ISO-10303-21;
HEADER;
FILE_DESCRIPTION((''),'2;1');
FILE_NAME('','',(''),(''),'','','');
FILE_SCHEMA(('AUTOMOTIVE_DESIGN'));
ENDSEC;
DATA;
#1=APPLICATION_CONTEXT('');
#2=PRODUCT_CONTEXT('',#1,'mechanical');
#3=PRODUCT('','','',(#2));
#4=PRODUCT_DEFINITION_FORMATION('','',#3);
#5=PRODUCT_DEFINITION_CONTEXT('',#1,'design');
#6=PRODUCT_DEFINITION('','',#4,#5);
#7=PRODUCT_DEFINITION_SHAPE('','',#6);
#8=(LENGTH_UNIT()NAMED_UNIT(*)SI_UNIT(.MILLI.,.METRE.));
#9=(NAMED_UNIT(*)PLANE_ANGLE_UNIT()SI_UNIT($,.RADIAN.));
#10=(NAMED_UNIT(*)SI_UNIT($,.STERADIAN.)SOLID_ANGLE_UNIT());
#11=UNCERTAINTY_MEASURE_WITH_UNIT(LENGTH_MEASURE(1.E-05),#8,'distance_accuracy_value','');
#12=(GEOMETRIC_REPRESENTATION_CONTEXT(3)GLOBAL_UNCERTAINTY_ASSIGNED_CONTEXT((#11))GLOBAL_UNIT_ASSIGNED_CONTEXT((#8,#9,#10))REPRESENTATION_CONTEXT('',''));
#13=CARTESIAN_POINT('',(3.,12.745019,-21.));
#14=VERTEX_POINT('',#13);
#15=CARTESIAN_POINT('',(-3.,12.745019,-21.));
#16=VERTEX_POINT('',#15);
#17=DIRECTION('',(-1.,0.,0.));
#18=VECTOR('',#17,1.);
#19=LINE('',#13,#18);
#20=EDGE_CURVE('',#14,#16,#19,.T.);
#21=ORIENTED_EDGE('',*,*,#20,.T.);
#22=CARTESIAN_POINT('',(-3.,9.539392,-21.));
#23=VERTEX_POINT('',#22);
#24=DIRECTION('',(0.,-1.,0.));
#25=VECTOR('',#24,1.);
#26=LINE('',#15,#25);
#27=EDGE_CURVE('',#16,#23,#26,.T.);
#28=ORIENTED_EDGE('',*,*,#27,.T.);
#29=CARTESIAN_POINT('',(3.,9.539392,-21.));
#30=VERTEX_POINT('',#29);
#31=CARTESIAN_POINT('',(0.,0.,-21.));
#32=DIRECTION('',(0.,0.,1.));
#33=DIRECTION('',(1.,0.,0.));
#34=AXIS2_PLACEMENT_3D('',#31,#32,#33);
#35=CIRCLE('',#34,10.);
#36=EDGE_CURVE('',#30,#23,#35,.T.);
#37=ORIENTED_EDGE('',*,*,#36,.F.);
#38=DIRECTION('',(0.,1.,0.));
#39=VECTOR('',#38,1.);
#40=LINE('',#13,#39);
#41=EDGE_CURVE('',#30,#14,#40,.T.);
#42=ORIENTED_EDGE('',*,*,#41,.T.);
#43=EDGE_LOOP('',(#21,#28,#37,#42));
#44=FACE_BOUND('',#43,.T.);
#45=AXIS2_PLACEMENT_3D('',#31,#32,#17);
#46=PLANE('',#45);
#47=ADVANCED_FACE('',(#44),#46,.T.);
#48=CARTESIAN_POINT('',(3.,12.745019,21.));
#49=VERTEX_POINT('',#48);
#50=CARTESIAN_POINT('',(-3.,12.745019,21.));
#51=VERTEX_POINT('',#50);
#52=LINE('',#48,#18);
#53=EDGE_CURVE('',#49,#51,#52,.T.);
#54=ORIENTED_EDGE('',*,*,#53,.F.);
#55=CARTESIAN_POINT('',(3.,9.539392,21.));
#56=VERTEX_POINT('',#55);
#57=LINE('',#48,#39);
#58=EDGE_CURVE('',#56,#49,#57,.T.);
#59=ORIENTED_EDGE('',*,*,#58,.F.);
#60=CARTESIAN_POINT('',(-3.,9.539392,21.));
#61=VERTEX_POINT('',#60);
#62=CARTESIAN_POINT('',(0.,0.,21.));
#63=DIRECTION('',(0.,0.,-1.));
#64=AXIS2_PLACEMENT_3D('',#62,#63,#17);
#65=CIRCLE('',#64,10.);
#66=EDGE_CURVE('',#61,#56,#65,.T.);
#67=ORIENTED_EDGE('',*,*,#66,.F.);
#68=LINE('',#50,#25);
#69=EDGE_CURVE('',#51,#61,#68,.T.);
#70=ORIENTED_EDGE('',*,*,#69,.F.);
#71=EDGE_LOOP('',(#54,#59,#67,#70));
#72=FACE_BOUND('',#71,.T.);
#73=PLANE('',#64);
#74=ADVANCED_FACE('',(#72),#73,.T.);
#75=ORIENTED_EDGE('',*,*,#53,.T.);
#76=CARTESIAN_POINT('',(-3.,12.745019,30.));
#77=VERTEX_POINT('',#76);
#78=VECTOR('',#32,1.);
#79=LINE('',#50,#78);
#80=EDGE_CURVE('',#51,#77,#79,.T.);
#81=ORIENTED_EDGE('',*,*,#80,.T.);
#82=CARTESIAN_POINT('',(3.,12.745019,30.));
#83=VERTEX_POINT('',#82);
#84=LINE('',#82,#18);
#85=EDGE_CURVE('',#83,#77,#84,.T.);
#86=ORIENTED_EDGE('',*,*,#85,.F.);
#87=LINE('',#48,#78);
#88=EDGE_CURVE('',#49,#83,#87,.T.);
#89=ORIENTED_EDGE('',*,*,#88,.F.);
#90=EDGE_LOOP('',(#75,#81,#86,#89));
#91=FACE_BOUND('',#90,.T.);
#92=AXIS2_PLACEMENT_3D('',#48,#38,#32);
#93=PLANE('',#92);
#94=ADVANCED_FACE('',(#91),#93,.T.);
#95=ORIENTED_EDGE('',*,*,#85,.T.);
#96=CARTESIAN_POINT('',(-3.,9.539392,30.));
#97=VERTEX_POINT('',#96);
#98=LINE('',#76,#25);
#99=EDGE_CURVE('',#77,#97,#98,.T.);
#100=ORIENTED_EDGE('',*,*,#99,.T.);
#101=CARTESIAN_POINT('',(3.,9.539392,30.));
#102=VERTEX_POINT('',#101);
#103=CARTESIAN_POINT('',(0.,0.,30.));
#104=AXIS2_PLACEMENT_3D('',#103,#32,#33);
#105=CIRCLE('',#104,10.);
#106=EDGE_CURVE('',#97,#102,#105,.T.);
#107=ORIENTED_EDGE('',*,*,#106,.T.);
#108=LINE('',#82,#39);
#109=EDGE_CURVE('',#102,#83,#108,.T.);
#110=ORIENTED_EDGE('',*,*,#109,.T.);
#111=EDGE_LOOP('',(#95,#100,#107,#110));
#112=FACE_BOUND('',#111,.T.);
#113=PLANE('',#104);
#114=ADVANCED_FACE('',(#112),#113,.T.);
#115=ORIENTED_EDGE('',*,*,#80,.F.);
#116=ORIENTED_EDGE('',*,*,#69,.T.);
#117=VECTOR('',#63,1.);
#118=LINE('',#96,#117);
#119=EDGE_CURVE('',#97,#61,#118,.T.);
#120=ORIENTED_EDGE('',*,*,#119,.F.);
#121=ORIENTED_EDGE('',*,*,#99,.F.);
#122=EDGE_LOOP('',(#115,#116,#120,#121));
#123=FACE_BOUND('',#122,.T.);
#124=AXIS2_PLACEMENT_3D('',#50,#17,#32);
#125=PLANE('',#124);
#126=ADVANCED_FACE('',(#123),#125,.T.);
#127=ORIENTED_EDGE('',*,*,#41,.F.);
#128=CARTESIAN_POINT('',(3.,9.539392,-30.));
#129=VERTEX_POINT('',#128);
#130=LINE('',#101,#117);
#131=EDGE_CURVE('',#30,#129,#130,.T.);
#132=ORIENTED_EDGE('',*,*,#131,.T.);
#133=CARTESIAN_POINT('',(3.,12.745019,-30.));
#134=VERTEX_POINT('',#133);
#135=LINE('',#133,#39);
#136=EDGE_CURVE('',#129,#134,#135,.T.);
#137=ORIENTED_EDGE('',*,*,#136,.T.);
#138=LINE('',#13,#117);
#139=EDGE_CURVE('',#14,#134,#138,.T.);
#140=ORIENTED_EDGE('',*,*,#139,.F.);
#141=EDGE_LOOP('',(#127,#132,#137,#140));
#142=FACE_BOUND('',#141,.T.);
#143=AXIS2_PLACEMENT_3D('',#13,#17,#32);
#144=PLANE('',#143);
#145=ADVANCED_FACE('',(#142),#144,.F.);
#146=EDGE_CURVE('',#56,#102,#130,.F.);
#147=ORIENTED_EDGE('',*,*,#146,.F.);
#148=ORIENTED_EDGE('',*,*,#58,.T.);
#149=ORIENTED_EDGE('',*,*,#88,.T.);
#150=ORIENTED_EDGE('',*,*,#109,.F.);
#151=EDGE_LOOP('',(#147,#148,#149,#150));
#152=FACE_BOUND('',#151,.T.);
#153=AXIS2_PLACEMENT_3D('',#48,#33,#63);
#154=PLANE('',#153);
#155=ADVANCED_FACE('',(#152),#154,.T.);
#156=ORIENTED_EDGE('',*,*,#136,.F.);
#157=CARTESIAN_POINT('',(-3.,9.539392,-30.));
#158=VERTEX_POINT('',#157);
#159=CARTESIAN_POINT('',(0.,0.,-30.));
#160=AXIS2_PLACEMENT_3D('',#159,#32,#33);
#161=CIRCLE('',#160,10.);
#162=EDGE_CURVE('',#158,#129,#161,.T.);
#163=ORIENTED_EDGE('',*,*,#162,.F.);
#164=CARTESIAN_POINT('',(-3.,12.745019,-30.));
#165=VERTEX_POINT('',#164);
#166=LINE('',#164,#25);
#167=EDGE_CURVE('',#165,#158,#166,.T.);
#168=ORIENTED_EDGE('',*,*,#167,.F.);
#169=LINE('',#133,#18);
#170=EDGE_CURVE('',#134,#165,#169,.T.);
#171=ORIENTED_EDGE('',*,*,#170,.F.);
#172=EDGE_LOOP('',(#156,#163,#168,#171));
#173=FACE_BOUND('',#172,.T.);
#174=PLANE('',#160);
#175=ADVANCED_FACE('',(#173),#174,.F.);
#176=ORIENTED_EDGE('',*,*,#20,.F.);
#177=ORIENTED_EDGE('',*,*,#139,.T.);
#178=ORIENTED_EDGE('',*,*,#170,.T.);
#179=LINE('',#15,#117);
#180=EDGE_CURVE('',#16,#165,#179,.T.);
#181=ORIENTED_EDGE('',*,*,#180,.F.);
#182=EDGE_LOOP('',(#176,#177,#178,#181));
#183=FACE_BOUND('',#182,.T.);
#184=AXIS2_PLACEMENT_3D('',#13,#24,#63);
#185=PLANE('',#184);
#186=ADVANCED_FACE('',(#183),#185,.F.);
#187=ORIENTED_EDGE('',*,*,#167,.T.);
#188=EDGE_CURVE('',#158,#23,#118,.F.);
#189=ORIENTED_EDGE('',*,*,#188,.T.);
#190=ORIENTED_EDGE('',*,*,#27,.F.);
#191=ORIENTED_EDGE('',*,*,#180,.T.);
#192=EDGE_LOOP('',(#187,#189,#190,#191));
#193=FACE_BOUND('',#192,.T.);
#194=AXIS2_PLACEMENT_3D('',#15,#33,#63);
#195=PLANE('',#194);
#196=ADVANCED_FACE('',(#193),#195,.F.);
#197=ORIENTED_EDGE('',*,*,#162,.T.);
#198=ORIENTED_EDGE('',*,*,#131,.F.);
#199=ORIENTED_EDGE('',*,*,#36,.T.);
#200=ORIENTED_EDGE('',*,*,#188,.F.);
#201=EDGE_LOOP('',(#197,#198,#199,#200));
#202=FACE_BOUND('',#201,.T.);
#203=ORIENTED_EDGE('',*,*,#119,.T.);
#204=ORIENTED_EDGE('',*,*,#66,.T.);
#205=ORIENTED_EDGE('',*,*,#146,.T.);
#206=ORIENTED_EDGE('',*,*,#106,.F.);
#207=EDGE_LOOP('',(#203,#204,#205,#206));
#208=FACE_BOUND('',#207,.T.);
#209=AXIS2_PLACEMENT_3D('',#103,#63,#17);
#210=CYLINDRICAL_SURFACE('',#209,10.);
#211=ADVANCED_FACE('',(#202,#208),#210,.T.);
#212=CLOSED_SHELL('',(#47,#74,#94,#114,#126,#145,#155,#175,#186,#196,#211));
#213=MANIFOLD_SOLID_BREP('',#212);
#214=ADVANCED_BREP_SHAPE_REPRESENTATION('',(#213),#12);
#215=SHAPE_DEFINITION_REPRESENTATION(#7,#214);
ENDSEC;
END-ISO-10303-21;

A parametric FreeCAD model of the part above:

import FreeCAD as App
import Part
import Sketcher
Q = App.Units.Quantity

doc = App.newDocument("Part")
body = doc.addObject("PartDesign::Body", "Body")

# Sketch on XY plane
sketch1 = doc.addObject("Sketcher::SketchObject", "Sketch")
body.addObject(sketch1)
sketch1.AttachmentSupport = (doc.XY_Plane, [""])
sketch1.MapMode = "FlatFace"
sketch1.addGeometry(Part.Circle(App.Vector(0, 0, 0), App.Vector(0, 0, 1), 10), False)
sketch1.addConstraint([
    Sketcher.Constraint("Coincident", 0, 3, -1, 1),
    Sketcher.Constraint("Diameter", 0, Q("20 mm")),
])
pad1 = doc.addObject("PartDesign::Pad", "Pad")
body.addObject(pad1)
pad1.Profile = sketch1
pad1.Length = 60
pad1.Midplane = True

# Sketch on XY plane
sketch2 = doc.addObject("Sketcher::SketchObject", "Sketch001")
body.addObject(sketch2)
sketch2.AttachmentSupport = (doc.XY_Plane, [""])
sketch2.MapMode = "FlatFace"
sketch2.AttachmentOffset = App.Placement(App.Vector(0, 0, 30), App.Rotation())
sketch2.addGeometry([
    Part.LineSegment(App.Vector(-3, 12.745019, 0), App.Vector(-3, 9.485019, 0)),
    Part.LineSegment(App.Vector(-3, 9.485019, 0), App.Vector(3, 9.485019, 0)),
    Part.LineSegment(App.Vector(3, 9.485019, 0), App.Vector(3, 12.745019, 0)),
    Part.LineSegment(App.Vector(3, 12.745019, 0), App.Vector(-3, 12.745019, 0)),
], False)
sketch2.addConstraint([
    Sketcher.Constraint("Coincident", 0, 2, 1, 1),
    Sketcher.Constraint("Coincident", 1, 2, 2, 1),
    Sketcher.Constraint("Coincident", 2, 2, 3, 1),
    Sketcher.Constraint("Coincident", 3, 2, 0, 1),
    Sketcher.Constraint("Vertical", 0),
    Sketcher.Constraint("Horizontal", 1),
    Sketcher.Constraint("Vertical", 2),
    Sketcher.Constraint("Horizontal", 3),
    Sketcher.Constraint("DistanceX", 1, 1, 1, 2, Q("6 mm")),
    Sketcher.Constraint("DistanceX", 0, 2, -1, 1, Q("3 mm")),
    Sketcher.Constraint("DistanceY", 0, 2, 0, 1, Q("3.26 mm")),
    Sketcher.Constraint("DistanceY", -1, 1, 0, 2, Q("9.485019 mm")),
])
pad2 = doc.addObject("PartDesign::Pad", "Pad001")
body.addObject(pad2)
pad2.Profile = sketch2
pad2.Length = 9
pad2.Reversed = True
doc.recompute()

mirrored = doc.addObject("PartDesign::Mirrored", "Mirrored")
body.addObject(mirrored)
mirrored.Originals = [pad2]
mirrored.MirrorPlane = (doc.XY_Plane, [""])
body.Tip = mirrored

doc.recompute()
